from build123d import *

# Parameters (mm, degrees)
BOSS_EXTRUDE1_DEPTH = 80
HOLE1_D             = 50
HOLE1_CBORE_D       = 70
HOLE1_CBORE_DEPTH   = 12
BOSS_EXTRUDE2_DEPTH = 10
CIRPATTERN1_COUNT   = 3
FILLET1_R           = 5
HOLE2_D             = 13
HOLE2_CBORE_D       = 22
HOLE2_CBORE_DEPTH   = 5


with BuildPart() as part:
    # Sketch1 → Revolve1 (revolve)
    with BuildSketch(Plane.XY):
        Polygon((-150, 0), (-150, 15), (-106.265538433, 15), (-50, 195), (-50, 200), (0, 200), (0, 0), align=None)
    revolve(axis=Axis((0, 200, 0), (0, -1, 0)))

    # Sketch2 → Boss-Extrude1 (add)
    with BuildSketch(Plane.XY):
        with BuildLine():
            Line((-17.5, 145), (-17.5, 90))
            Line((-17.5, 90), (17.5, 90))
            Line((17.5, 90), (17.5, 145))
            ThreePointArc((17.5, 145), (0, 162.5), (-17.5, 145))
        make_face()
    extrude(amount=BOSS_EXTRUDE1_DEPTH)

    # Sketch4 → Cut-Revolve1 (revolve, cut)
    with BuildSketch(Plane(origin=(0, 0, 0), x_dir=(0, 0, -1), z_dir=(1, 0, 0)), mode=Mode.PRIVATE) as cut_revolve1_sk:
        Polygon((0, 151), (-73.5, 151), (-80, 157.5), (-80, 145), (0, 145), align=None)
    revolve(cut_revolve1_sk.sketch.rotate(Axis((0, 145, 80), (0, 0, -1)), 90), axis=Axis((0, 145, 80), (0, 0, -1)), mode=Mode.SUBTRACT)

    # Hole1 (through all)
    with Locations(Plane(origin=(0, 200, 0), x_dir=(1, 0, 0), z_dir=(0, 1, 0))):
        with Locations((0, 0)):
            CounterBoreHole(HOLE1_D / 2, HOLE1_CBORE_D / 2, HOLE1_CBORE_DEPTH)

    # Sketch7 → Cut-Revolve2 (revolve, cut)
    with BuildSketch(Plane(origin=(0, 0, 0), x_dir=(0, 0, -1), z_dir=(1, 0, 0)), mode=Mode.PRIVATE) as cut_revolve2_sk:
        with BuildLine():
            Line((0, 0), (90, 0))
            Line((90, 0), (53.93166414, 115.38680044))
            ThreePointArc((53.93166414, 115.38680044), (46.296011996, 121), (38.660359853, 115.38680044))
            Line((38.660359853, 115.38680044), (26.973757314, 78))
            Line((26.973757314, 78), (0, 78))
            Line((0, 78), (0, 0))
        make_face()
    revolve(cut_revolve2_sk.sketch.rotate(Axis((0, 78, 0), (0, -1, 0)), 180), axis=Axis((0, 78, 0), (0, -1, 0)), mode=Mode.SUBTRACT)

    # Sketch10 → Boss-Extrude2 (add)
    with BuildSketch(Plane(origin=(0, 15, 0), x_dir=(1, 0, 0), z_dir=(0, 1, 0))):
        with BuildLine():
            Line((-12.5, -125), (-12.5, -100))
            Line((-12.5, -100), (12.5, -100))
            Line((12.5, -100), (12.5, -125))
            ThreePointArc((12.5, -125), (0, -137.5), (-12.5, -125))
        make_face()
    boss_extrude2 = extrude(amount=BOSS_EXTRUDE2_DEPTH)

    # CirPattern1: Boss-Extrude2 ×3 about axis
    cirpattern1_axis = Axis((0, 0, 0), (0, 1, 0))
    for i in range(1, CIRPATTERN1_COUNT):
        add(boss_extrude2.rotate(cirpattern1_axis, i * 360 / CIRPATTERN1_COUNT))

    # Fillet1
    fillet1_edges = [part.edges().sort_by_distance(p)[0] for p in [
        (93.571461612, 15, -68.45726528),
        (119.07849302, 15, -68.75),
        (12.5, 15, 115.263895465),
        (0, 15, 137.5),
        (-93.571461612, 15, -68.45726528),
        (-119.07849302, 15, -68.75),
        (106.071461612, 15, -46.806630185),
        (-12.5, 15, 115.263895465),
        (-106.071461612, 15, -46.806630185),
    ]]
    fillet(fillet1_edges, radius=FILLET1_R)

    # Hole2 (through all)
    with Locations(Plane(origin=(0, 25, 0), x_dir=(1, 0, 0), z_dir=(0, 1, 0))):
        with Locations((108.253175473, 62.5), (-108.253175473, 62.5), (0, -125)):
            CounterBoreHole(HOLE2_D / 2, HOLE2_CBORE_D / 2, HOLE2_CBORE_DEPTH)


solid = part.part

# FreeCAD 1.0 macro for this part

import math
import FreeCAD as App
import Part
import Sketcher

V = App.Vector
Q = App.Units.Quantity


def edges_at(feature, points):
    """Names of the edges that pass closest to the given points."""
    edges = feature.Shape.Edges
    near = lambda p: min(range(len(edges)), key=lambda i: edges[i].distToShape(Part.Vertex(*p))[0])
    return sorted({f"Edge{near(p) + 1}" for p in points})


def add_polygon(sketch, points):
    """Adds a closed chain of lines whose ends are joined by coincident constraints."""
    first, n = sketch.GeometryCount, len(points)
    for a, b in zip(points, points[1:] + points[:1]):
        sketch.addGeometry(Part.LineSegment(App.Vector(*a, 0), App.Vector(*b, 0)), False)
    for i in range(n):
        sketch.addConstraint(Sketcher.Constraint("Coincident", first + i, 2, first + (i + 1) % n, 1))

doc = App.newDocument("Part")
params = doc.addObject("Spreadsheet::Sheet", "Params")
for row, (alias, value) in enumerate([
    ("sketch1_width", "150 mm"),
    ("sketch1_width2", "50 mm"),
    ("sketch1_height", "15 mm"),
    ("sketch1_height2", "200 mm"),
    ("sketch1_height3", "5 mm"),
    ("revolution_angle", "360 deg"),
    ("sketch2_radius", "17.5 mm"),
    ("sketch2_height", "55 mm"),
    ("pad1_length", "80 mm"),
    ("sketch3_width", "6 mm"),
    ("sketch3_height", "80 mm"),
    ("sketch3_width2", "12.5 mm"),
    ("groove_angle", "360 deg"),
    ("sketch4_diameter", "50 mm"),
    ("hole_diameter", "50 mm"),
    ("hole_cbore_diameter", "70 mm"),
    ("hole_cbore_depth", "12 mm"),
    ("sketch5_radius", "8 mm"),
    ("sketch5_width", "78 mm"),
    ("sketch5_height", "90 mm"),
    ("groove2_angle", "360 deg"),
    ("sketch6_radius", "12.5 mm"),
    ("pad2_length", "10 mm"),
    ("fillet_radius", "5 mm"),
    ("sketch7_diameter", "13 mm"),
    ("hole2_diameter", "13 mm"),
    ("hole2_cbore_diameter", "22 mm"),
    ("hole2_cbore_depth", "5 mm"),
], start=1):
    params.set(f"A{row}", alias)
    params.set(f"B{row}", "=" + value)
    params.setAlias(f"B{row}", alias)

body = doc.addObject("PartDesign::Body", "Body")

# Sketch on XY plane
sketch1 = body.newObject("Sketcher::SketchObject", "Sketch")
sketch1.AttachmentSupport = (doc.getObject("XY_Plane"), [""])
sketch1.MapMode = "FlatFace"
add_polygon(sketch1, [(-150, 15), (-150, 0), (0, 0), (0, 200), (-50, 200), (-50, 195), (-106, 15)])  # lines 0-6
sketch1.addConstraint([
    Sketcher.Constraint("Vertical", 0),
    Sketcher.Constraint("Horizontal", 1),
    Sketcher.Constraint("Vertical", 2),
    Sketcher.Constraint("Horizontal", 3),
    Sketcher.Constraint("Vertical", 4),
    Sketcher.Constraint("Horizontal", 6),
    Sketcher.Constraint("Coincident", 1, 2, -1, 1),
    Sketcher.Constraint("DistanceX", 1, 1, 1, 2, 150.0),
    Sketcher.Constraint("DistanceX", 3, 2, 3, 1, 50.0),
    Sketcher.Constraint("DistanceY", 0, 2, 0, 1, 15.0),
    Sketcher.Constraint("DistanceY", 2, 1, 2, 2, 200.0),
    Sketcher.Constraint("DistanceY", 4, 2, 4, 1, 5.0),
    Sketcher.Constraint("Distance", 5, 188.589),
])
sketch1.setExpression("Constraints[14]", "Params.sketch1_width")
sketch1.setExpression("Constraints[15]", "Params.sketch1_width2")
sketch1.setExpression("Constraints[16]", "Params.sketch1_height")
sketch1.setExpression("Constraints[17]", "Params.sketch1_height2")
sketch1.setExpression("Constraints[18]", "Params.sketch1_height3")
revolution = body.newObject("PartDesign::Revolution", "Revolution")
revolution.Profile = sketch1
revolution.ReferenceAxis = (sketch1, ["V_Axis"])
revolution.setExpression("Angle", "Params.revolution_angle")

# Sketch on XY plane
sketch2 = body.newObject("Sketcher::SketchObject", "Sketch001")
sketch2.AttachmentSupport = (doc.getObject("XY_Plane"), [""])
sketch2.MapMode = "FlatFace"
sketch2.addGeometry([
    Part.LineSegment(V(-18, 145, 0), V(-18, 90, 0)),
    Part.LineSegment(V(-18, 90, 0), V(18, 90, 0)),
    Part.LineSegment(V(18, 90, 0), V(18, 145, 0)),
    Part.ArcOfCircle(Part.Circle(V(0, 145, 0), V(0, 0, 1), 18), math.radians(0), math.radians(180)),
], False)
sketch2.addConstraint([
    Sketcher.Constraint("Coincident", 0, 2, 1, 1),
    Sketcher.Constraint("Coincident", 1, 2, 2, 1),
    Sketcher.Constraint("Tangent", 2, 2, 3, 1),
    Sketcher.Constraint("Tangent", 3, 2, 0, 1),
    Sketcher.Constraint("Vertical", 0),
    Sketcher.Constraint("Horizontal", 1),
    Sketcher.Constraint("Vertical", 2),
    Sketcher.Constraint("PointOnObject", 3, 3, -2),
    Sketcher.Constraint("Radius", 3, 17.5),
    Sketcher.Constraint("DistanceY", 0, 2, 0, 1, 55.0),
    Sketcher.Constraint("DistanceY", -1, 1, 3, 3, 145.0),
])
sketch2.setExpression("Constraints[8]", "Params.sketch2_radius")
sketch2.setExpression("Constraints[9]", "Params.sketch2_height")
pad1 = body.newObject("PartDesign::Pad", "Pad")
pad1.Profile = sketch2
pad1.setExpression("Length", "Params.pad1_length")

# Sketch on YZ plane
sketch3 = body.newObject("Sketcher::SketchObject", "Sketch002")
sketch3.AttachmentSupport = (doc.getObject("YZ_Plane"), [""])
sketch3.MapMode = "FlatFace"
add_polygon(sketch3, [(151, 0), (151, 74), (158, 80), (145, 80), (145, 0)])  # lines 0-4
sketch3.addGeometry(Part.LineSegment(V(145, 80, 0), V(145, 0, 0)), True)  # axis
sketch3.addConstraint([
    Sketcher.Constraint("Vertical", 0),
    Sketcher.Constraint("Horizontal", 2),
    Sketcher.Constraint("Vertical", 3),
    Sketcher.Constraint("Horizontal", 4),
    Sketcher.Constraint("Vertical", 5),
    Sketcher.Constraint("Coincident", 5, 1, 2, 2),
    Sketcher.Constraint("PointOnObject", 3, 2, -1),
    Sketcher.Constraint("PointOnObject", 5, 2, -1),
    Sketcher.Constraint("DistanceX", 4, 1, 4, 2, 6.0),
    Sketcher.Constraint("DistanceY", 3, 2, 3, 1, 80.0),
    Sketcher.Constraint("Angle", 1, Q("45 deg")),
    Sketcher.Constraint("DistanceX", 2, 2, 2, 1, 12.5),
    Sketcher.Constraint("DistanceX", -1, 1, 0, 2, 151.0),
])
sketch3.setExpression("Constraints[13]", "Params.sketch3_width")
sketch3.setExpression("Constraints[14]", "Params.sketch3_height")
sketch3.setExpression("Constraints[16]", "Params.sketch3_width2")
groove = body.newObject("PartDesign::Groove", "Groove")
groove.Profile = sketch3
groove.ReferenceAxis = (sketch3, ["Axis0"])
groove.setExpression("Angle", "Params.groove_angle")

# Sketch on XZ plane
sketch4 = body.newObject("Sketcher::SketchObject", "Sketch003")
sketch4.AttachmentSupport = (doc.getObject("XZ_Plane"), [""])
sketch4.MapMode = "FlatFace"
sketch4.AttachmentOffset = App.Placement(V(0, 0, -200), App.Rotation())
sketch4.addGeometry(Part.Circle(V(0, 0, 0), V(0, 0, 1), 25), False)
sketch4.addConstraint([
    Sketcher.Constraint("Coincident", 0, 3, -1, 1),
    Sketcher.Constraint("Diameter", 0, 50.0),
])
sketch4.setExpression("Constraints[1]", "Params.sketch4_diameter")
doc.recompute()
hole = body.newObject("PartDesign::Hole", "Hole")
hole.Profile = sketch4
hole.ThreadType = "None"
hole.setExpression("Diameter", "Params.hole_diameter")
hole.DepthType = "ThroughAll"
hole.HoleCutType = "Counterbore"
hole.setExpression("HoleCutDiameter", "Params.hole_cbore_diameter")
hole.setExpression("HoleCutDepth", "Params.hole_cbore_depth")
hole.Reversed = True

# Sketch on YZ plane
sketch5 = body.newObject("Sketcher::SketchObject", "Sketch004")
sketch5.AttachmentSupport = (doc.getObject("YZ_Plane"), [""])
sketch5.MapMode = "FlatFace"
sketch5.addGeometry([
    Part.LineSegment(V(0, 0, 0), V(0, -90, 0)),  # 0
    Part.LineSegment(V(0, -90, 0), V(115, -54, 0)),  # 1
    Part.ArcOfCircle(Part.Circle(V(113, -46, 0), V(0, 0, 1), 8), math.radians(-73), math.radians(73)),  # 2
    Part.LineSegment(V(115, -39, 0), V(78, -27, 0)),  # 3
    Part.LineSegment(V(78, -27, 0), V(78, 0, 0)),  # 4
    Part.LineSegment(V(78, 0, 0), V(0, 0, 0)),  # 5
], False)
sketch5.addConstraint([
    Sketcher.Constraint("Coincident", 0, 2, 1, 1),
    Sketcher.Constraint("Tangent", 1, 2, 2, 1),
    Sketcher.Constraint("Tangent", 2, 2, 3, 1),
    Sketcher.Constraint("Coincident", 3, 2, 4, 1),
    Sketcher.Constraint("Coincident", 4, 2, 5, 1),
    Sketcher.Constraint("Coincident", 5, 2, 0, 1),
    Sketcher.Constraint("Vertical", 0),
    Sketcher.Constraint("Vertical", 4),
    Sketcher.Constraint("Horizontal", 5),
    Sketcher.Constraint("Coincident", 5, 2, -1, 1),
    Sketcher.Constraint("Vertical", 1, 2, 2, 2),
    Sketcher.Constraint("Radius", 2, 8.0),
    Sketcher.Constraint("DistanceX", 5, 2, 5, 1, 78.0),
    Sketcher.Constraint("DistanceY", 0, 2, 0, 1, 90.0),
    Sketcher.Constraint("DistanceX", -1, 1, 2, 3, 113.0),
    Sketcher.Constraint("DistanceX", -1, 1, 1, 2, 115.3868),
])
sketch5.setExpression("Constraints[11]", "Params.sketch5_radius")
sketch5.setExpression("Constraints[12]", "Params.sketch5_width")
sketch5.setExpression("Constraints[13]", "Params.sketch5_height")
groove2 = body.newObject("PartDesign::Groove", "Groove001")
groove2.Profile = sketch5
groove2.ReferenceAxis = (sketch5, ["H_Axis"])
groove2.setExpression("Angle", "Params.groove2_angle")

# Sketch on XZ plane
sketch6 = body.newObject("Sketcher::SketchObject", "Sketch005")
sketch6.AttachmentSupport = (doc.getObject("XZ_Plane"), [""])
sketch6.MapMode = "FlatFace"
sketch6.AttachmentOffset = App.Placement(V(0, 0, -15), App.Rotation())
sketch6.addGeometry([
    Part.LineSegment(V(-12, 100, 0), V(-12, 125, 0)),
    Part.ArcOfCircle(Part.Circle(V(0, 125, 0), V(0, 0, 1), 12), math.radians(0), math.radians(180)),
    Part.LineSegment(V(12, 125, 0), V(12, 100, 0)),
    Part.LineSegment(V(12, 100, 0), V(-12, 100, 0)),
], False)
sketch6.addConstraint([
    Sketcher.Constraint("Tangent", 0, 2, 1, 2),
    Sketcher.Constraint("Tangent", 1, 1, 2, 1),
    Sketcher.Constraint("Coincident", 2, 2, 3, 1),
    Sketcher.Constraint("Coincident", 3, 2, 0, 1),
    Sketcher.Constraint("Vertical", 0),
    Sketcher.Constraint("Vertical", 2),
    Sketcher.Constraint("Horizontal", 3),
    Sketcher.Constraint("PointOnObject", 1, 3, -2),
    Sketcher.Constraint("Equal", 3, 0),
    Sketcher.Constraint("Radius", 1, 12.5),
    Sketcher.Constraint("DistanceY", -1, 1, 1, 3, 125.0),
])
sketch6.setExpression("Constraints[9]", "Params.sketch6_radius")
pad2 = body.newObject("PartDesign::Pad", "Pad001")
pad2.Profile = sketch6
pad2.setExpression("Length", "Params.pad2_length")
pad2.Reversed = True
doc.recompute()

polarpattern = body.newObject("PartDesign::PolarPattern", "PolarPattern")
polarpattern.Originals = [pad2]
polarpattern.Axis = (doc.getObject("Y_Axis"), [""])
polarpattern.Angle = 360
polarpattern.Occurrences = 3
body.Tip = polarpattern
doc.recompute()

fillet = body.newObject("PartDesign::Fillet", "Fillet")
fillet.Base = (polarpattern, edges_at(polarpattern, [
    (93.571, 15, -68.457),
    (119.078, 15, -68.75),
    (12.5, 15, 115.264),
    (0, 15, 137.5),
    (-93.571, 15, -68.457),
    (-119.078, 15, -68.75),
    (106.071, 15, -46.807),
    (-12.5, 15, 115.264),
    (-106.071, 15, -46.807),
]))
fillet.setExpression("Radius", "Params.fillet_radius")

# Sketch on XZ plane
sketch7 = body.newObject("Sketcher::SketchObject", "Sketch006")
sketch7.AttachmentSupport = (doc.getObject("XZ_Plane"), [""])
sketch7.MapMode = "FlatFace"
sketch7.AttachmentOffset = App.Placement(V(0, 0, -25), App.Rotation())
sketch7.addGeometry([
    Part.Circle(V(108, -62, 0), V(0, 0, 1), 6),
    Part.Circle(V(-108, -62, 0), V(0, 0, 1), 6),
    Part.Circle(V(0, 125, 0), V(0, 0, 1), 6),
], False)
sketch7.addConstraint([
    Sketcher.Constraint("Equal", 0, 1),
    Sketcher.Constraint("Equal", 1, 2),
    Sketcher.Constraint("Symmetric", 0, 3, 1, 3, -2),
    Sketcher.Constraint("PointOnObject", 2, 3, -2),
    Sketcher.Constraint("Diameter", 0, 13.0),
    Sketcher.Constraint("DistanceY", -1, 1, 2, 3, 125.0),
    Sketcher.Constraint("DistanceY", 0, 3, -1, 1, 62.5),
    Sketcher.Constraint("DistanceX", 1, 3, 0, 3, 216.506351),
])
sketch7.setExpression("Constraints[4]", "Params.sketch7_diameter")
doc.recompute()
hole2 = body.newObject("PartDesign::Hole", "Hole001")
hole2.Profile = sketch7
hole2.ThreadType = "None"
hole2.setExpression("Diameter", "Params.hole2_diameter")
hole2.DepthType = "ThroughAll"
hole2.HoleCutType = "Counterbore"
hole2.setExpression("HoleCutDiameter", "Params.hole2_cbore_diameter")
hole2.setExpression("HoleCutDepth", "Params.hole2_cbore_depth")
hole2.Reversed = True

doc.recompute()
